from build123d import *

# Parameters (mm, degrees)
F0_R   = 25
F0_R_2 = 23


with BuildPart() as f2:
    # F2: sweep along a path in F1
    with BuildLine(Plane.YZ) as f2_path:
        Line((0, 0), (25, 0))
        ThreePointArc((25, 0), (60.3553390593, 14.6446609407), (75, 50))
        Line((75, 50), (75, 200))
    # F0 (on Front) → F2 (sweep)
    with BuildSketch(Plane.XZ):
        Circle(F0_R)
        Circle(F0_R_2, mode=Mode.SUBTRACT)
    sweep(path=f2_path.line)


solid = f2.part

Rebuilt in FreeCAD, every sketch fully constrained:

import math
import FreeCAD as App
import Part
import Sketcher
from FreeCAD import Vector
Q = App.Units.Quantity

doc = App.newDocument("Part")
body = doc.addObject("PartDesign::Body", "Body")

sketch1 = body.newObject("Sketcher::SketchObject", "Sketch")
sketch1.AttachmentSupport = (doc.getObject("XZ_Plane"), [""])
sketch1.MapMode = "FlatFace"
sketch1.addGeometry(Part.Circle(Vector(0, 0, 0), Vector(0, 0, 1), 25), False)
sketch1.addGeometry(Part.Circle(Vector(0, 0, 0), Vector(0, 0, 1), 23), False)
sketch1.addConstraint(Sketcher.Constraint("Coincident", 0, 3, -1, 1))
sketch1.addConstraint(Sketcher.Constraint("Coincident", 1, 3, -1, 1))
sketch1.addConstraint(Sketcher.Constraint("Diameter", 0, Q("50 mm")))
sketch1.addConstraint(Sketcher.Constraint("Diameter", 1, Q("46 mm")))

sketch2 = body.newObject("Sketcher::SketchObject", "Sketch001")
sketch2.AttachmentSupport = (doc.getObject("YZ_Plane"), [""])
sketch2.MapMode = "FlatFace"
sketch2.addGeometry(Part.LineSegment(Vector(0, 0, 0), Vector(25, 0, 0)), False)
sketch2.addGeometry(Part.ArcOfCircle(Part.Circle(Vector(25, 50, 0), Vector(0, 0, 1), 50), math.radians(-90), math.radians(0)), False)
sketch2.addGeometry(Part.LineSegment(Vector(75, 50, 0), Vector(75, 200, 0)), False)
sketch2.addConstraint(Sketcher.Constraint("Tangent", 0, 2, 1, 1))
sketch2.addConstraint(Sketcher.Constraint("Tangent", 1, 2, 2, 1))
sketch2.addConstraint(Sketcher.Constraint("Horizontal", 0))
sketch2.addConstraint(Sketcher.Constraint("Vertical", 2))
sketch2.addConstraint(Sketcher.Constraint("Coincident", 0, 1, -1, 1))
sketch2.addConstraint(Sketcher.Constraint("Radius", 1, Q("50 mm")))
sketch2.addConstraint(Sketcher.Constraint("DistanceX", 0, 1, 0, 2, Q("25 mm")))
sketch2.addConstraint(Sketcher.Constraint("DistanceY", 2, 1, 2, 2, Q("150 mm")))
doc.recompute()

additivepipe = body.newObject("PartDesign::AdditivePipe", "AdditivePipe")
additivepipe.Profile = sketch1
additivepipe.Spine = (sketch2, ["Edge1", "Edge2", "Edge3"])

doc.recompute()
